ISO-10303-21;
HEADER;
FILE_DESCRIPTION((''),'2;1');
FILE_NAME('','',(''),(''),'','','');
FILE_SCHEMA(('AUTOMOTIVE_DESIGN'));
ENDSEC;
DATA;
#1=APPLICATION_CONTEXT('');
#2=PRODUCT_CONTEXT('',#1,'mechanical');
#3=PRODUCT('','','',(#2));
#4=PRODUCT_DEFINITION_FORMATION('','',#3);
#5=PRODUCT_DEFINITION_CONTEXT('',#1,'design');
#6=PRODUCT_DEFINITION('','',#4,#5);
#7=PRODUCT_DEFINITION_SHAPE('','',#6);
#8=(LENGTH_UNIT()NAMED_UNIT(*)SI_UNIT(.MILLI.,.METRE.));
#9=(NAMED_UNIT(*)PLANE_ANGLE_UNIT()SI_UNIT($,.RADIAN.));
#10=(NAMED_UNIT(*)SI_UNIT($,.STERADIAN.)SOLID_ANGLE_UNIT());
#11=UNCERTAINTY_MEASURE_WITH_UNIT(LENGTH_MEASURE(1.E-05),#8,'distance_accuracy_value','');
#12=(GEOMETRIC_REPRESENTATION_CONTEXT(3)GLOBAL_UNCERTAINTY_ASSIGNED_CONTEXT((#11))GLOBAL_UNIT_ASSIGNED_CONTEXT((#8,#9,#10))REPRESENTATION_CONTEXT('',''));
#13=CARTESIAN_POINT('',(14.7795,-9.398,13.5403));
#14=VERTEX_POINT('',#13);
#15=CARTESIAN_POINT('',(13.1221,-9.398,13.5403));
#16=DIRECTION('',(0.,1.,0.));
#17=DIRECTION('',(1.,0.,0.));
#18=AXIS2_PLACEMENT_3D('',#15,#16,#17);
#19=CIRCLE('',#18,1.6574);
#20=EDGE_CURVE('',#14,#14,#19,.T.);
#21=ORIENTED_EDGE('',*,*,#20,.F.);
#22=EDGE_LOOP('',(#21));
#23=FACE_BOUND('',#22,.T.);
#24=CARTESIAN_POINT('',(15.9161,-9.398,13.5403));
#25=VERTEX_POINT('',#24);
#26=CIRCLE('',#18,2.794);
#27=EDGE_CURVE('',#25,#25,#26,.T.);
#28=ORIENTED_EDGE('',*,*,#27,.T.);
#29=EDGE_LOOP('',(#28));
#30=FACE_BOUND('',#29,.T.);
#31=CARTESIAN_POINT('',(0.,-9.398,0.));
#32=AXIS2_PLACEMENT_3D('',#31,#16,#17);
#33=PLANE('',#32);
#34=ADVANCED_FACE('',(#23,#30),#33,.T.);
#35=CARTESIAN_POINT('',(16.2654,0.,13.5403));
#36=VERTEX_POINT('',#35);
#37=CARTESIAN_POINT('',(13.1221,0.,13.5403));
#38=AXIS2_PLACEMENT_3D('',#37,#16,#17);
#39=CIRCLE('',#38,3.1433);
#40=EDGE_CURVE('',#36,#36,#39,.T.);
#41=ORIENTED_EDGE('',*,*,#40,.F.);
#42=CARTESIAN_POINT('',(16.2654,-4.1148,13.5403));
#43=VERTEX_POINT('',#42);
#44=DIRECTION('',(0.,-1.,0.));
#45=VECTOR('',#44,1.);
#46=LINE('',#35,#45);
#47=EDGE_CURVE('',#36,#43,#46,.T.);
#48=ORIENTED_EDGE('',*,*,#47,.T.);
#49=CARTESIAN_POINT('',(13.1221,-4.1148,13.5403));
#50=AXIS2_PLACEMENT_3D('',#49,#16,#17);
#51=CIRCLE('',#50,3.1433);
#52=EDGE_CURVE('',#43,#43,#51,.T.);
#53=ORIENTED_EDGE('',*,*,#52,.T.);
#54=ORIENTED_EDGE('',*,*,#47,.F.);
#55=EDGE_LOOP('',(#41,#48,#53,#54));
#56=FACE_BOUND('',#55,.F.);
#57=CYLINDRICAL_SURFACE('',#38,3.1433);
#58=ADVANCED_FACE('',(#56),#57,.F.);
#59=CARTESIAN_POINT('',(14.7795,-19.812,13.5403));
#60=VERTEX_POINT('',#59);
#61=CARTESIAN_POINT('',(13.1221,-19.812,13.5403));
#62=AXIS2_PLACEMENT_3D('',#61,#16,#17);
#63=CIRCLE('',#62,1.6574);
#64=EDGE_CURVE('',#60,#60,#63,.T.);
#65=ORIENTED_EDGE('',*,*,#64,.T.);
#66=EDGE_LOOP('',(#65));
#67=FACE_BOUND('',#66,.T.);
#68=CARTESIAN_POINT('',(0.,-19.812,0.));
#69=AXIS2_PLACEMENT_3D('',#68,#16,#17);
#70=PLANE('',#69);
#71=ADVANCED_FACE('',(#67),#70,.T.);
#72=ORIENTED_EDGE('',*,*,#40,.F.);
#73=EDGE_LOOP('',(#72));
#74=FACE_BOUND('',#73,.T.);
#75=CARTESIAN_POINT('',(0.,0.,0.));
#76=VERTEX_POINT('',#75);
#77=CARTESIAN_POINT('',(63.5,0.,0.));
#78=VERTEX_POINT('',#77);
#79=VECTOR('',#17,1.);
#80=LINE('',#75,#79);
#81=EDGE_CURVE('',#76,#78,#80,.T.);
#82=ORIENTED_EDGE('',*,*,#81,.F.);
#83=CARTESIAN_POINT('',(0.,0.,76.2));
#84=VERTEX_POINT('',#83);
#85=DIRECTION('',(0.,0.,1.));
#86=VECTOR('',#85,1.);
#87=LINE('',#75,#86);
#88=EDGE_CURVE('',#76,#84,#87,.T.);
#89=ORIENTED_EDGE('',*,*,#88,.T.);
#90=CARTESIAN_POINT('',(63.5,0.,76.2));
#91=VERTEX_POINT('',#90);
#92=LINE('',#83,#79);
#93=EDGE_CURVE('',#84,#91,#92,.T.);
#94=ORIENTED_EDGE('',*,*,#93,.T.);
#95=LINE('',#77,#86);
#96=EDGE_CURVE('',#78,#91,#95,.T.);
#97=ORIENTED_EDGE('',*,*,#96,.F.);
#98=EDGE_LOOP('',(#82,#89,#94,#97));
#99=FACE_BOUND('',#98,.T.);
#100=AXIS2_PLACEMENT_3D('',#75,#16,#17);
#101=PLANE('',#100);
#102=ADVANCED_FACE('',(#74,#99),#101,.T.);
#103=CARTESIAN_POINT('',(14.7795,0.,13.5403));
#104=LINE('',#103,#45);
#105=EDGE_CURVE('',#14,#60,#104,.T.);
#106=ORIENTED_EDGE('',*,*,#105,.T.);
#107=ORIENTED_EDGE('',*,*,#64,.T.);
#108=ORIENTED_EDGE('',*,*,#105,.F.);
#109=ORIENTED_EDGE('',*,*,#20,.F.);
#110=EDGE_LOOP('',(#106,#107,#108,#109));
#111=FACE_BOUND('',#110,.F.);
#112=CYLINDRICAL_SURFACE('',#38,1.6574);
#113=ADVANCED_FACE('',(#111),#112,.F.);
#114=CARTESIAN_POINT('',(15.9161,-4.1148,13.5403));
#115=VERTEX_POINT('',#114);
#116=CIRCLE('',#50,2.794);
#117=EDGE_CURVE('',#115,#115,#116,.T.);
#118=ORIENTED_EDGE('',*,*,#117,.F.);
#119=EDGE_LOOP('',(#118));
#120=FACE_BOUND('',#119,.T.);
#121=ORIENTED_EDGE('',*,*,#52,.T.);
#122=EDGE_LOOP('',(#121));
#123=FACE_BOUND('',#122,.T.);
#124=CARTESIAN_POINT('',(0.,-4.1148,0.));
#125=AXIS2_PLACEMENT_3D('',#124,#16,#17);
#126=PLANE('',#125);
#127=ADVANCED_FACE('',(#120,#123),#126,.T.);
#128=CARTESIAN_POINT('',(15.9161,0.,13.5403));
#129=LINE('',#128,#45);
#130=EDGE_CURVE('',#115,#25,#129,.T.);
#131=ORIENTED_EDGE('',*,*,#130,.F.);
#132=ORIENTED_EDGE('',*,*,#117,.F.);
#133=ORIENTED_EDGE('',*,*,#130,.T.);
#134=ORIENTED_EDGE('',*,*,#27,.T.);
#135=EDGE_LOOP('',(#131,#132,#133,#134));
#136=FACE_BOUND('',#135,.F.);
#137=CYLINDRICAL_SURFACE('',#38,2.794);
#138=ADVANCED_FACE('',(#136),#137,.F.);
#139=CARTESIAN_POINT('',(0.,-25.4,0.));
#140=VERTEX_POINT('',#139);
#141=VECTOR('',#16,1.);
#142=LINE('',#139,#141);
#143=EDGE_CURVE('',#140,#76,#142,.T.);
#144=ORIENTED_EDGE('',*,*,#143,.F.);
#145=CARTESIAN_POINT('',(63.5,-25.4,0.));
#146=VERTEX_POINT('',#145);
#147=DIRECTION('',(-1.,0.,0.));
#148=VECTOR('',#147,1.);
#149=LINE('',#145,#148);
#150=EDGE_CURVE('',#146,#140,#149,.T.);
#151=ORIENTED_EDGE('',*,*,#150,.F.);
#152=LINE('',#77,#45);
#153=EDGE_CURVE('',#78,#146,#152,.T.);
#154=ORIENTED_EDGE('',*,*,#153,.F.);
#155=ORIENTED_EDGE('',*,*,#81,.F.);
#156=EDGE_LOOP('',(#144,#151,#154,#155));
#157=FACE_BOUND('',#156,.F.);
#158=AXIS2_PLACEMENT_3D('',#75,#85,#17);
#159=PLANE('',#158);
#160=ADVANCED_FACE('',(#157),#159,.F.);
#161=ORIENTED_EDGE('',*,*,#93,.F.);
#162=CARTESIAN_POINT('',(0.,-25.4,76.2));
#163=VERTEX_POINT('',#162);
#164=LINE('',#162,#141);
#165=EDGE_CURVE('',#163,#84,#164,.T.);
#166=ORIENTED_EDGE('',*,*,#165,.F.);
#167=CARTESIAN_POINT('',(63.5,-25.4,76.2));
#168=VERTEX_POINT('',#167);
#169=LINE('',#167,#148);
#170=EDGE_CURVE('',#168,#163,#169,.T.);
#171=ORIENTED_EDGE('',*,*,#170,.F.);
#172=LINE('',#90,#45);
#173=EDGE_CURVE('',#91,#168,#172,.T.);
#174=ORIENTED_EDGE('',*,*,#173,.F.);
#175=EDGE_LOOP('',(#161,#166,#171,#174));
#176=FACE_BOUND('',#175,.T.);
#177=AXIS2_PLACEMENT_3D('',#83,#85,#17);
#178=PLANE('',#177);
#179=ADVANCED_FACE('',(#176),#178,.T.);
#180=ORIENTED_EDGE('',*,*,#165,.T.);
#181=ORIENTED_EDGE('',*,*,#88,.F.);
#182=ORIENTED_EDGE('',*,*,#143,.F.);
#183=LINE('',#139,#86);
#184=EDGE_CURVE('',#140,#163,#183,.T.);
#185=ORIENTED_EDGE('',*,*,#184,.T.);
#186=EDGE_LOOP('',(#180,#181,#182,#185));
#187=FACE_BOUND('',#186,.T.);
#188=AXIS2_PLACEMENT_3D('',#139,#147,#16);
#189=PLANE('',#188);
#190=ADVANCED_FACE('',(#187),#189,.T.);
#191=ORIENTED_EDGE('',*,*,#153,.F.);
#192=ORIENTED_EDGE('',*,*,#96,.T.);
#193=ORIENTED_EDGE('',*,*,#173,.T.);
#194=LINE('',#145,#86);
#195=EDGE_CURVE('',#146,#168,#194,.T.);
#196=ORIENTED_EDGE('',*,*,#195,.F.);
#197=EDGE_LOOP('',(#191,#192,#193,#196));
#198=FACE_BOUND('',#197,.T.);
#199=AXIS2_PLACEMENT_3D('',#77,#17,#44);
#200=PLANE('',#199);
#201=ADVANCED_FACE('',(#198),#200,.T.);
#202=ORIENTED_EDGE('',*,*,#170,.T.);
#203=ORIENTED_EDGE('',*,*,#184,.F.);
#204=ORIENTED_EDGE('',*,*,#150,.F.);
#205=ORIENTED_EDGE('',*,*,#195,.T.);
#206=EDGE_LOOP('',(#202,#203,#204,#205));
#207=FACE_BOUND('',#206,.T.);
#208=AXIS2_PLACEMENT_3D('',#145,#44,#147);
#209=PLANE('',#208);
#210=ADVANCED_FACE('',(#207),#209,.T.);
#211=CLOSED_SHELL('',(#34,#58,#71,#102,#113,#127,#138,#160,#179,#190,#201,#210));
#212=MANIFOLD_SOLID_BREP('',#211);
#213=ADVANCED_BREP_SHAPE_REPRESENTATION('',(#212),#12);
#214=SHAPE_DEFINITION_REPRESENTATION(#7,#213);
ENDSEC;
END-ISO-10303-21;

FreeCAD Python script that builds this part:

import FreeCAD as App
import Part
import Sketcher
from FreeCAD import Vector
Q = App.Units.Quantity

doc = App.newDocument("Part")
body = doc.addObject("PartDesign::Body", "Body")

# Sketch on XY plane
sketch1 = body.newObject("Sketcher::SketchObject", "Sketch")
sketch1.AttachmentSupport = (doc.getObject("XY_Plane"), [""])
sketch1.MapMode = "FlatFace"
sketch1.addGeometry([
    Part.LineSegment(Vector(64, 0, 0), Vector(0, 0, 0)),
    Part.LineSegment(Vector(0, 0, 0), Vector(0, -25, 0)),
    Part.LineSegment(Vector(0, -25, 0), Vector(64, -25, 0)),
    Part.LineSegment(Vector(64, -25, 0), Vector(64, 0, 0)),
], False)
sketch1.addConstraint([
    Sketcher.Constraint("Coincident", 0, 2, 1, 1),
    Sketcher.Constraint("Coincident", 1, 2, 2, 1),
    Sketcher.Constraint("Coincident", 2, 2, 3, 1),
    Sketcher.Constraint("Coincident", 3, 2, 0, 1),
    Sketcher.Constraint("Horizontal", 0),
    Sketcher.Constraint("Vertical", 1),
    Sketcher.Constraint("Horizontal", 2),
    Sketcher.Constraint("Vertical", 3),
    Sketcher.Constraint("Coincident", 0, 2, -1, 1),
    Sketcher.Constraint("DistanceY", 1, 2, 1, 1, Q("1 in")),
    Sketcher.Constraint("DistanceX", 0, 2, 0, 1, Q("2.5 in")),
])
pad1 = body.newObject("PartDesign::Pad", "Pad")
pad1.Profile = sketch1
pad1.Length = Q("3 in")

# Sketch on XZ plane
sketch2 = body.newObject("Sketcher::SketchObject", "Sketch001")
sketch2.AttachmentSupport = (doc.getObject("XZ_Plane"), [""])
sketch2.MapMode = "FlatFace"
sketch2.addGeometry(Part.Circle(Vector(13.1, 13.5, 0), Vector(0, 0, 1), 1.7), False)
sketch2.addConstraint([
    Sketcher.Constraint("Diameter", 0, Q("0.1305 in")),
    Sketcher.Constraint("DistanceX", -1, 1, 0, 3, 13.122),
    Sketcher.Constraint("DistanceY", -1, 1, 0, 3, 13.5403),
])
pocket1 = body.newObject("PartDesign::Pocket", "Pocket")
pocket1.Profile = sketch2
pocket1.Length = Q("0.78 in")
pocket1.Reversed = True

# Sketch on XZ plane
sketch3 = body.newObject("Sketcher::SketchObject", "Sketch002")
sketch3.AttachmentSupport = (doc.getObject("XZ_Plane"), [""])
sketch3.MapMode = "FlatFace"
sketch3.addGeometry([
    Part.Circle(Vector(13.1, 13.5, 0), Vector(0, 0, 1), 2.8),
    Part.Circle(Vector(13.1, 13.5, 0), Vector(0, 0, 1), 1.7),
], False)
sketch3.addConstraint([
    Sketcher.Constraint("Coincident", 1, 3, 0, 3),
    Sketcher.Constraint("Diameter", 0, Q("0.22 in")),
    Sketcher.Constraint("Diameter", 1, Q("0.1305 in")),
    Sketcher.Constraint("DistanceX", -1, 1, 0, 3, 13.122),
    Sketcher.Constraint("DistanceY", -1, 1, 0, 3, 13.5403),
])
pocket2 = body.newObject("PartDesign::Pocket", "Pocket001")
pocket2.Profile = sketch3
pocket2.Length = Q("0.37 in")
pocket2.Reversed = True

# Sketch on XZ plane
sketch4 = body.newObject("Sketcher::SketchObject", "Sketch003")
sketch4.AttachmentSupport = (doc.getObject("XZ_Plane"), [""])
sketch4.MapMode = "FlatFace"
sketch4.addGeometry([
    Part.Circle(Vector(13.1, 13.5, 0), Vector(0, 0, 1), 3.1),
    Part.Circle(Vector(13.1, 13.5, 0), Vector(0, 0, 1), 2.8),
], False)
sketch4.addConstraint([
    Sketcher.Constraint("Coincident", 1, 3, 0, 3),
    Sketcher.Constraint("Diameter", 1, Q("0.22 in")),
    Sketcher.Constraint("Diameter", 0, Q("0.2475 in")),
    Sketcher.Constraint("DistanceX", -1, 1, 0, 3, 13.122),
    Sketcher.Constraint("DistanceY", -1, 1, 0, 3, 13.5403),
])
pocket3 = body.newObject("PartDesign::Pocket", "Pocket002")
pocket3.Profile = sketch4
pocket3.Length = Q("0.162 in")
pocket3.Reversed = True

doc.recompute()
